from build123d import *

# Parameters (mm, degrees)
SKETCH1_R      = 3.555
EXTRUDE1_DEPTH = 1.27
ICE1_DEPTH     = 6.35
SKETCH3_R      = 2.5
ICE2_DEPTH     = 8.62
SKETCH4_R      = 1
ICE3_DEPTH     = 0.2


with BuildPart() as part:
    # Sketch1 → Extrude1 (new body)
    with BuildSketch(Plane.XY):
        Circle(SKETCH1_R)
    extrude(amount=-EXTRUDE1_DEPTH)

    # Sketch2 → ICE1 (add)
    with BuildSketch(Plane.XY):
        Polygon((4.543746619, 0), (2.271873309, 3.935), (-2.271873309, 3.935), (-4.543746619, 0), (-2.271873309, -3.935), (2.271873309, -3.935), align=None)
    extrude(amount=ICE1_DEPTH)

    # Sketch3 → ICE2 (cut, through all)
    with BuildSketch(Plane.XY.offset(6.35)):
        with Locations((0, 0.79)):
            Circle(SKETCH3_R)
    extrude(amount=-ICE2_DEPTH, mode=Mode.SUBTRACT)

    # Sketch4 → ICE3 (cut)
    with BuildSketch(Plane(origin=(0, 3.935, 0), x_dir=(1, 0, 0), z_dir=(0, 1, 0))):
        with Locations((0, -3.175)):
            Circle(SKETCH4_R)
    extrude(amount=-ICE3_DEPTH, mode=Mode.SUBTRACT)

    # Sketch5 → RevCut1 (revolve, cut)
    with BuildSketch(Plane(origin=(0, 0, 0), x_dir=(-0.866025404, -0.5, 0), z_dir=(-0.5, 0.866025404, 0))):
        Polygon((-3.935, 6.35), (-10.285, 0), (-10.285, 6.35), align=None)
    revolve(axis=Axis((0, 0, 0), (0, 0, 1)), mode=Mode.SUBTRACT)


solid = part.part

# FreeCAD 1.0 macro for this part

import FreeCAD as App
import Part
import Sketcher
from FreeCAD import Vector
Q = App.Units.Quantity

doc = App.newDocument("Part")
body = doc.addObject("PartDesign::Body", "Body")

# Sketch on XY plane
sketch1 = body.newObject("Sketcher::SketchObject", "Sketch")
sketch1.AttachmentSupport = (doc.getObject("XY_Plane"), [""])
sketch1.MapMode = "FlatFace"
sketch1.addGeometry(Part.Circle(Vector(0, 0, 0), Vector(0, 0, 1), 3.6), False)
sketch1.addConstraint(Sketcher.Constraint("Coincident", 0, 3, -1, 1))
sketch1.addConstraint(Sketcher.Constraint("Diameter", 0, Q("7.11 mm")))
pad1 = body.newObject("PartDesign::Pad", "Pad")
pad1.Profile = sketch1
pad1.Length = 1.27
pad1.Reversed = True

# Sketch on XY plane
sketch2 = body.newObject("Sketcher::SketchObject", "Sketch001")
sketch2.AttachmentSupport = (doc.getObject("XY_Plane"), [""])
sketch2.MapMode = "FlatFace"
sketch2.addGeometry(Part.LineSegment(Vector(4.5, 0, 0), Vector(2.3, 3.9, 0)), False)
sketch2.addGeometry(Part.LineSegment(Vector(2.3, 3.9, 0), Vector(-2.3, 3.9, 0)), False)
sketch2.addGeometry(Part.LineSegment(Vector(-2.3, 3.9, 0), Vector(-4.5, 0, 0)), False)
sketch2.addGeometry(Part.LineSegment(Vector(-4.5, 0, 0), Vector(-2.3, -3.9, 0)), False)
sketch2.addGeometry(Part.LineSegment(Vector(-2.3, -3.9, 0), Vector(2.3, -3.9, 0)), False)
sketch2.addGeometry(Part.LineSegment(Vector(2.3, -3.9, 0), Vector(4.5, 0, 0)), False)
sketch2.addConstraint(Sketcher.Constraint("Coincident", 0, 2, 1, 1))
sketch2.addConstraint(Sketcher.Constraint("Coincident", 1, 2, 2, 1))
sketch2.addConstraint(Sketcher.Constraint("Coincident", 2, 2, 3, 1))
sketch2.addConstraint(Sketcher.Constraint("Coincident", 3, 2, 4, 1))
sketch2.addConstraint(Sketcher.Constraint("Coincident", 4, 2, 5, 1))
sketch2.addConstraint(Sketcher.Constraint("Coincident", 5, 2, 0, 1))
sketch2.addConstraint(Sketcher.Constraint("Horizontal", 1))
sketch2.addConstraint(Sketcher.Constraint("Horizontal", 4))
sketch2.addConstraint(Sketcher.Constraint("Symmetric", 0, 2, 3, 2, -1, 1))
sketch2.addConstraint(Sketcher.Constraint("Symmetric", 2, 2, 5, 2, -1, 1))
sketch2.addConstraint(Sketcher.Constraint("PointOnObject", 2, 2, -1))
sketch2.addConstraint(Sketcher.Constraint("Parallel", 2, 5))
sketch2.addConstraint(Sketcher.Constraint("Vertical", 1, 2, 3, 2))
sketch2.addConstraint(Sketcher.Constraint("Angle", 0, Q("120 deg")))
sketch2.addConstraint(Sketcher.Constraint("DistanceY", 3, 2, 1, 2, Q("7.87 mm")))
sketch2.addConstraint(Sketcher.Constraint("DistanceX", 1, 2, 1, 1, Q("4.543747 mm")))
pad2 = body.newObject("PartDesign::Pad", "Pad001")
pad2.Profile = sketch2
pad2.Length = 6.35

# Sketch on XY plane
sketch3 = body.newObject("Sketcher::SketchObject", "Sketch002")
sketch3.AttachmentSupport = (doc.getObject("XY_Plane"), [""])
sketch3.MapMode = "FlatFace"
sketch3.AttachmentOffset = App.Placement(Vector(0, 0, 6.35), App.Rotation())
sketch3.addGeometry(Part.Circle(Vector(0, 0.8, 0), Vector(0, 0, 1), 2.5), False)
sketch3.addConstraint(Sketcher.Constraint("PointOnObject", 0, 3, -2))
sketch3.addConstraint(Sketcher.Constraint("Diameter", 0, Q("5 mm")))
sketch3.addConstraint(Sketcher.Constraint("DistanceY", -1, 1, 0, 3, Q("0.79 mm")))
pocket1 = body.newObject("PartDesign::Pocket", "Pocket")
pocket1.Profile = sketch3
pocket1.Type = "ThroughAll"

# Sketch on XZ plane
sketch4 = body.newObject("Sketcher::SketchObject", "Sketch003")
sketch4.AttachmentSupport = (doc.getObject("XZ_Plane"), [""])
sketch4.MapMode = "FlatFace"
sketch4.AttachmentOffset = App.Placement(Vector(0, 0, -3.935), App.Rotation())
sketch4.addGeometry(Part.Circle(Vector(0, 3.2, 0), Vector(0, 0, 1), 1), False)
sketch4.addConstraint(Sketcher.Constraint("PointOnObject", 0, 3, -2))
sketch4.addConstraint(Sketcher.Constraint("Diameter", 0, Q("2 mm")))
sketch4.addConstraint(Sketcher.Constraint("DistanceY", -1, 1, 0, 3, Q("3.175 mm")))
pocket2 = body.newObject("PartDesign::Pocket", "Pocket001")
pocket2.Profile = sketch4
pocket2.Length = 0.2
pocket2.Reversed = True

# Sketch on an angled plane
sketch5 = body.newObject("Sketcher::SketchObject", "Sketch004")
sketch5.Placement = App.Placement(Vector(0, 0, 0), App.Rotation(Vector(-0.866025404, -0.5, 0), Vector(0, 0, 1), Vector(-0.5, 0.866025404, 0), "ZXY"))
sketch5.addGeometry(Part.LineSegment(Vector(-10, 0, 0), Vector(-4, 6, 0)), False)
sketch5.addGeometry(Part.LineSegment(Vector(-4, 6, 0), Vector(-10, 6, 0)), False)
sketch5.addGeometry(Part.LineSegment(Vector(-10, 6, 0), Vector(-10, 0, 0)), False)
sketch5.addConstraint(Sketcher.Constraint("Coincident", 0, 2, 1, 1))
sketch5.addConstraint(Sketcher.Constraint("Coincident", 1, 2, 2, 1))
sketch5.addConstraint(Sketcher.Constraint("Coincident", 2, 2, 0, 1))
sketch5.addConstraint(Sketcher.Constraint("Horizontal", 1))
sketch5.addConstraint(Sketcher.Constraint("Vertical", 2))
sketch5.addConstraint(Sketcher.Constraint("PointOnObject", 2, 2, -1))
sketch5.addConstraint(Sketcher.Constraint("Equal", 1, 2))
sketch5.addConstraint(Sketcher.Constraint("DistanceX", 1, 2, 1, 1, Q("6.35 mm")))
sketch5.addConstraint(Sketcher.Constraint("DistanceX", 0, 2, -1, 1, Q("3.935 mm")))
groove = body.newObject("PartDesign::Groove", "Groove")
groove.Profile = sketch5
groove.ReferenceAxis = (sketch5, ["V_Axis"])
groove.Angle = 360

doc.recompute()
